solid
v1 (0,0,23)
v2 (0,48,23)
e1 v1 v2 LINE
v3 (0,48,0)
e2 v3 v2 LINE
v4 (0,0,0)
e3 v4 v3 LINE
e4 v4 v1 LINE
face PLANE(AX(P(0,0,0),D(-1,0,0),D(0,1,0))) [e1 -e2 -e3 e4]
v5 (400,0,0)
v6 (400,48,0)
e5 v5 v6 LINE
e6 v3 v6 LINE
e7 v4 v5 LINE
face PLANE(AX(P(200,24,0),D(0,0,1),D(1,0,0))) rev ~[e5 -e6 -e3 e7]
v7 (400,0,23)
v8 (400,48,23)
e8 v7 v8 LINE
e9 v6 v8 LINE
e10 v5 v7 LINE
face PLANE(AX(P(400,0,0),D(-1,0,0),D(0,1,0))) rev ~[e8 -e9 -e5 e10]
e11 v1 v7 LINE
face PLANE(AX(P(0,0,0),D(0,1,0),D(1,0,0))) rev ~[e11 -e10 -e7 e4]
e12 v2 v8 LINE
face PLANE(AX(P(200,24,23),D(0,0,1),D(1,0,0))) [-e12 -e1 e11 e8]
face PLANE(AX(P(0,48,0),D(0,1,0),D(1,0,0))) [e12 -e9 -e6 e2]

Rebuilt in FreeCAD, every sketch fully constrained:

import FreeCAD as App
import Part
import Sketcher

V = App.Vector


def add_polygon(sketch, points):
    """Adds a closed chain of lines whose ends are joined by coincident constraints."""
    first, n = sketch.GeometryCount, len(points)
    for a, b in zip(points, points[1:] + points[:1]):
        sketch.addGeometry(Part.LineSegment(App.Vector(*a, 0), App.Vector(*b, 0)), False)
    for i in range(n):
        sketch.addConstraint(Sketcher.Constraint("Coincident", first + i, 2, first + (i + 1) % n, 1))

doc = App.newDocument("Part")
params = doc.addObject("Spreadsheet::Sheet", "Params")
for row, (alias, value) in enumerate([
    ("sketch1_width", "400 mm"),
    ("sketch1_height", "48 mm"),
    ("pad1_length", "23 mm"),
], start=1):
    params.set(f"A{row}", alias)
    params.set(f"B{row}", "=" + value)
    params.setAlias(f"B{row}", alias)

body = doc.addObject("PartDesign::Body", "Body")

# Sketch on XY plane
sketch1 = body.newObject("Sketcher::SketchObject", "Sketch")
sketch1.AttachmentSupport = (doc.getObject("XY_Plane"), [""])
sketch1.MapMode = "FlatFace"
add_polygon(sketch1, [(0, 48), (0, 0), (400, 0), (400, 48)])  # lines 0-3
sketch1.addConstraint([
    Sketcher.Constraint("Vertical", 0),
    Sketcher.Constraint("Horizontal", 1),
    Sketcher.Constraint("Vertical", 2),
    Sketcher.Constraint("Horizontal", 3),
    Sketcher.Constraint("Coincident", 0, 2, -1, 1),
    Sketcher.Constraint("DistanceX", 1, 1, 1, 2, 400.0),
    Sketcher.Constraint("DistanceY", 0, 2, 0, 1, 48.0),
])
sketch1.setExpression("Constraints[9]", "Params.sketch1_width")
sketch1.setExpression("Constraints[10]", "Params.sketch1_height")
pad1 = body.newObject("PartDesign::Pad", "Pad")
pad1.Profile = sketch1
pad1.setExpression("Length", "Params.pad1_length")

doc.recompute()
